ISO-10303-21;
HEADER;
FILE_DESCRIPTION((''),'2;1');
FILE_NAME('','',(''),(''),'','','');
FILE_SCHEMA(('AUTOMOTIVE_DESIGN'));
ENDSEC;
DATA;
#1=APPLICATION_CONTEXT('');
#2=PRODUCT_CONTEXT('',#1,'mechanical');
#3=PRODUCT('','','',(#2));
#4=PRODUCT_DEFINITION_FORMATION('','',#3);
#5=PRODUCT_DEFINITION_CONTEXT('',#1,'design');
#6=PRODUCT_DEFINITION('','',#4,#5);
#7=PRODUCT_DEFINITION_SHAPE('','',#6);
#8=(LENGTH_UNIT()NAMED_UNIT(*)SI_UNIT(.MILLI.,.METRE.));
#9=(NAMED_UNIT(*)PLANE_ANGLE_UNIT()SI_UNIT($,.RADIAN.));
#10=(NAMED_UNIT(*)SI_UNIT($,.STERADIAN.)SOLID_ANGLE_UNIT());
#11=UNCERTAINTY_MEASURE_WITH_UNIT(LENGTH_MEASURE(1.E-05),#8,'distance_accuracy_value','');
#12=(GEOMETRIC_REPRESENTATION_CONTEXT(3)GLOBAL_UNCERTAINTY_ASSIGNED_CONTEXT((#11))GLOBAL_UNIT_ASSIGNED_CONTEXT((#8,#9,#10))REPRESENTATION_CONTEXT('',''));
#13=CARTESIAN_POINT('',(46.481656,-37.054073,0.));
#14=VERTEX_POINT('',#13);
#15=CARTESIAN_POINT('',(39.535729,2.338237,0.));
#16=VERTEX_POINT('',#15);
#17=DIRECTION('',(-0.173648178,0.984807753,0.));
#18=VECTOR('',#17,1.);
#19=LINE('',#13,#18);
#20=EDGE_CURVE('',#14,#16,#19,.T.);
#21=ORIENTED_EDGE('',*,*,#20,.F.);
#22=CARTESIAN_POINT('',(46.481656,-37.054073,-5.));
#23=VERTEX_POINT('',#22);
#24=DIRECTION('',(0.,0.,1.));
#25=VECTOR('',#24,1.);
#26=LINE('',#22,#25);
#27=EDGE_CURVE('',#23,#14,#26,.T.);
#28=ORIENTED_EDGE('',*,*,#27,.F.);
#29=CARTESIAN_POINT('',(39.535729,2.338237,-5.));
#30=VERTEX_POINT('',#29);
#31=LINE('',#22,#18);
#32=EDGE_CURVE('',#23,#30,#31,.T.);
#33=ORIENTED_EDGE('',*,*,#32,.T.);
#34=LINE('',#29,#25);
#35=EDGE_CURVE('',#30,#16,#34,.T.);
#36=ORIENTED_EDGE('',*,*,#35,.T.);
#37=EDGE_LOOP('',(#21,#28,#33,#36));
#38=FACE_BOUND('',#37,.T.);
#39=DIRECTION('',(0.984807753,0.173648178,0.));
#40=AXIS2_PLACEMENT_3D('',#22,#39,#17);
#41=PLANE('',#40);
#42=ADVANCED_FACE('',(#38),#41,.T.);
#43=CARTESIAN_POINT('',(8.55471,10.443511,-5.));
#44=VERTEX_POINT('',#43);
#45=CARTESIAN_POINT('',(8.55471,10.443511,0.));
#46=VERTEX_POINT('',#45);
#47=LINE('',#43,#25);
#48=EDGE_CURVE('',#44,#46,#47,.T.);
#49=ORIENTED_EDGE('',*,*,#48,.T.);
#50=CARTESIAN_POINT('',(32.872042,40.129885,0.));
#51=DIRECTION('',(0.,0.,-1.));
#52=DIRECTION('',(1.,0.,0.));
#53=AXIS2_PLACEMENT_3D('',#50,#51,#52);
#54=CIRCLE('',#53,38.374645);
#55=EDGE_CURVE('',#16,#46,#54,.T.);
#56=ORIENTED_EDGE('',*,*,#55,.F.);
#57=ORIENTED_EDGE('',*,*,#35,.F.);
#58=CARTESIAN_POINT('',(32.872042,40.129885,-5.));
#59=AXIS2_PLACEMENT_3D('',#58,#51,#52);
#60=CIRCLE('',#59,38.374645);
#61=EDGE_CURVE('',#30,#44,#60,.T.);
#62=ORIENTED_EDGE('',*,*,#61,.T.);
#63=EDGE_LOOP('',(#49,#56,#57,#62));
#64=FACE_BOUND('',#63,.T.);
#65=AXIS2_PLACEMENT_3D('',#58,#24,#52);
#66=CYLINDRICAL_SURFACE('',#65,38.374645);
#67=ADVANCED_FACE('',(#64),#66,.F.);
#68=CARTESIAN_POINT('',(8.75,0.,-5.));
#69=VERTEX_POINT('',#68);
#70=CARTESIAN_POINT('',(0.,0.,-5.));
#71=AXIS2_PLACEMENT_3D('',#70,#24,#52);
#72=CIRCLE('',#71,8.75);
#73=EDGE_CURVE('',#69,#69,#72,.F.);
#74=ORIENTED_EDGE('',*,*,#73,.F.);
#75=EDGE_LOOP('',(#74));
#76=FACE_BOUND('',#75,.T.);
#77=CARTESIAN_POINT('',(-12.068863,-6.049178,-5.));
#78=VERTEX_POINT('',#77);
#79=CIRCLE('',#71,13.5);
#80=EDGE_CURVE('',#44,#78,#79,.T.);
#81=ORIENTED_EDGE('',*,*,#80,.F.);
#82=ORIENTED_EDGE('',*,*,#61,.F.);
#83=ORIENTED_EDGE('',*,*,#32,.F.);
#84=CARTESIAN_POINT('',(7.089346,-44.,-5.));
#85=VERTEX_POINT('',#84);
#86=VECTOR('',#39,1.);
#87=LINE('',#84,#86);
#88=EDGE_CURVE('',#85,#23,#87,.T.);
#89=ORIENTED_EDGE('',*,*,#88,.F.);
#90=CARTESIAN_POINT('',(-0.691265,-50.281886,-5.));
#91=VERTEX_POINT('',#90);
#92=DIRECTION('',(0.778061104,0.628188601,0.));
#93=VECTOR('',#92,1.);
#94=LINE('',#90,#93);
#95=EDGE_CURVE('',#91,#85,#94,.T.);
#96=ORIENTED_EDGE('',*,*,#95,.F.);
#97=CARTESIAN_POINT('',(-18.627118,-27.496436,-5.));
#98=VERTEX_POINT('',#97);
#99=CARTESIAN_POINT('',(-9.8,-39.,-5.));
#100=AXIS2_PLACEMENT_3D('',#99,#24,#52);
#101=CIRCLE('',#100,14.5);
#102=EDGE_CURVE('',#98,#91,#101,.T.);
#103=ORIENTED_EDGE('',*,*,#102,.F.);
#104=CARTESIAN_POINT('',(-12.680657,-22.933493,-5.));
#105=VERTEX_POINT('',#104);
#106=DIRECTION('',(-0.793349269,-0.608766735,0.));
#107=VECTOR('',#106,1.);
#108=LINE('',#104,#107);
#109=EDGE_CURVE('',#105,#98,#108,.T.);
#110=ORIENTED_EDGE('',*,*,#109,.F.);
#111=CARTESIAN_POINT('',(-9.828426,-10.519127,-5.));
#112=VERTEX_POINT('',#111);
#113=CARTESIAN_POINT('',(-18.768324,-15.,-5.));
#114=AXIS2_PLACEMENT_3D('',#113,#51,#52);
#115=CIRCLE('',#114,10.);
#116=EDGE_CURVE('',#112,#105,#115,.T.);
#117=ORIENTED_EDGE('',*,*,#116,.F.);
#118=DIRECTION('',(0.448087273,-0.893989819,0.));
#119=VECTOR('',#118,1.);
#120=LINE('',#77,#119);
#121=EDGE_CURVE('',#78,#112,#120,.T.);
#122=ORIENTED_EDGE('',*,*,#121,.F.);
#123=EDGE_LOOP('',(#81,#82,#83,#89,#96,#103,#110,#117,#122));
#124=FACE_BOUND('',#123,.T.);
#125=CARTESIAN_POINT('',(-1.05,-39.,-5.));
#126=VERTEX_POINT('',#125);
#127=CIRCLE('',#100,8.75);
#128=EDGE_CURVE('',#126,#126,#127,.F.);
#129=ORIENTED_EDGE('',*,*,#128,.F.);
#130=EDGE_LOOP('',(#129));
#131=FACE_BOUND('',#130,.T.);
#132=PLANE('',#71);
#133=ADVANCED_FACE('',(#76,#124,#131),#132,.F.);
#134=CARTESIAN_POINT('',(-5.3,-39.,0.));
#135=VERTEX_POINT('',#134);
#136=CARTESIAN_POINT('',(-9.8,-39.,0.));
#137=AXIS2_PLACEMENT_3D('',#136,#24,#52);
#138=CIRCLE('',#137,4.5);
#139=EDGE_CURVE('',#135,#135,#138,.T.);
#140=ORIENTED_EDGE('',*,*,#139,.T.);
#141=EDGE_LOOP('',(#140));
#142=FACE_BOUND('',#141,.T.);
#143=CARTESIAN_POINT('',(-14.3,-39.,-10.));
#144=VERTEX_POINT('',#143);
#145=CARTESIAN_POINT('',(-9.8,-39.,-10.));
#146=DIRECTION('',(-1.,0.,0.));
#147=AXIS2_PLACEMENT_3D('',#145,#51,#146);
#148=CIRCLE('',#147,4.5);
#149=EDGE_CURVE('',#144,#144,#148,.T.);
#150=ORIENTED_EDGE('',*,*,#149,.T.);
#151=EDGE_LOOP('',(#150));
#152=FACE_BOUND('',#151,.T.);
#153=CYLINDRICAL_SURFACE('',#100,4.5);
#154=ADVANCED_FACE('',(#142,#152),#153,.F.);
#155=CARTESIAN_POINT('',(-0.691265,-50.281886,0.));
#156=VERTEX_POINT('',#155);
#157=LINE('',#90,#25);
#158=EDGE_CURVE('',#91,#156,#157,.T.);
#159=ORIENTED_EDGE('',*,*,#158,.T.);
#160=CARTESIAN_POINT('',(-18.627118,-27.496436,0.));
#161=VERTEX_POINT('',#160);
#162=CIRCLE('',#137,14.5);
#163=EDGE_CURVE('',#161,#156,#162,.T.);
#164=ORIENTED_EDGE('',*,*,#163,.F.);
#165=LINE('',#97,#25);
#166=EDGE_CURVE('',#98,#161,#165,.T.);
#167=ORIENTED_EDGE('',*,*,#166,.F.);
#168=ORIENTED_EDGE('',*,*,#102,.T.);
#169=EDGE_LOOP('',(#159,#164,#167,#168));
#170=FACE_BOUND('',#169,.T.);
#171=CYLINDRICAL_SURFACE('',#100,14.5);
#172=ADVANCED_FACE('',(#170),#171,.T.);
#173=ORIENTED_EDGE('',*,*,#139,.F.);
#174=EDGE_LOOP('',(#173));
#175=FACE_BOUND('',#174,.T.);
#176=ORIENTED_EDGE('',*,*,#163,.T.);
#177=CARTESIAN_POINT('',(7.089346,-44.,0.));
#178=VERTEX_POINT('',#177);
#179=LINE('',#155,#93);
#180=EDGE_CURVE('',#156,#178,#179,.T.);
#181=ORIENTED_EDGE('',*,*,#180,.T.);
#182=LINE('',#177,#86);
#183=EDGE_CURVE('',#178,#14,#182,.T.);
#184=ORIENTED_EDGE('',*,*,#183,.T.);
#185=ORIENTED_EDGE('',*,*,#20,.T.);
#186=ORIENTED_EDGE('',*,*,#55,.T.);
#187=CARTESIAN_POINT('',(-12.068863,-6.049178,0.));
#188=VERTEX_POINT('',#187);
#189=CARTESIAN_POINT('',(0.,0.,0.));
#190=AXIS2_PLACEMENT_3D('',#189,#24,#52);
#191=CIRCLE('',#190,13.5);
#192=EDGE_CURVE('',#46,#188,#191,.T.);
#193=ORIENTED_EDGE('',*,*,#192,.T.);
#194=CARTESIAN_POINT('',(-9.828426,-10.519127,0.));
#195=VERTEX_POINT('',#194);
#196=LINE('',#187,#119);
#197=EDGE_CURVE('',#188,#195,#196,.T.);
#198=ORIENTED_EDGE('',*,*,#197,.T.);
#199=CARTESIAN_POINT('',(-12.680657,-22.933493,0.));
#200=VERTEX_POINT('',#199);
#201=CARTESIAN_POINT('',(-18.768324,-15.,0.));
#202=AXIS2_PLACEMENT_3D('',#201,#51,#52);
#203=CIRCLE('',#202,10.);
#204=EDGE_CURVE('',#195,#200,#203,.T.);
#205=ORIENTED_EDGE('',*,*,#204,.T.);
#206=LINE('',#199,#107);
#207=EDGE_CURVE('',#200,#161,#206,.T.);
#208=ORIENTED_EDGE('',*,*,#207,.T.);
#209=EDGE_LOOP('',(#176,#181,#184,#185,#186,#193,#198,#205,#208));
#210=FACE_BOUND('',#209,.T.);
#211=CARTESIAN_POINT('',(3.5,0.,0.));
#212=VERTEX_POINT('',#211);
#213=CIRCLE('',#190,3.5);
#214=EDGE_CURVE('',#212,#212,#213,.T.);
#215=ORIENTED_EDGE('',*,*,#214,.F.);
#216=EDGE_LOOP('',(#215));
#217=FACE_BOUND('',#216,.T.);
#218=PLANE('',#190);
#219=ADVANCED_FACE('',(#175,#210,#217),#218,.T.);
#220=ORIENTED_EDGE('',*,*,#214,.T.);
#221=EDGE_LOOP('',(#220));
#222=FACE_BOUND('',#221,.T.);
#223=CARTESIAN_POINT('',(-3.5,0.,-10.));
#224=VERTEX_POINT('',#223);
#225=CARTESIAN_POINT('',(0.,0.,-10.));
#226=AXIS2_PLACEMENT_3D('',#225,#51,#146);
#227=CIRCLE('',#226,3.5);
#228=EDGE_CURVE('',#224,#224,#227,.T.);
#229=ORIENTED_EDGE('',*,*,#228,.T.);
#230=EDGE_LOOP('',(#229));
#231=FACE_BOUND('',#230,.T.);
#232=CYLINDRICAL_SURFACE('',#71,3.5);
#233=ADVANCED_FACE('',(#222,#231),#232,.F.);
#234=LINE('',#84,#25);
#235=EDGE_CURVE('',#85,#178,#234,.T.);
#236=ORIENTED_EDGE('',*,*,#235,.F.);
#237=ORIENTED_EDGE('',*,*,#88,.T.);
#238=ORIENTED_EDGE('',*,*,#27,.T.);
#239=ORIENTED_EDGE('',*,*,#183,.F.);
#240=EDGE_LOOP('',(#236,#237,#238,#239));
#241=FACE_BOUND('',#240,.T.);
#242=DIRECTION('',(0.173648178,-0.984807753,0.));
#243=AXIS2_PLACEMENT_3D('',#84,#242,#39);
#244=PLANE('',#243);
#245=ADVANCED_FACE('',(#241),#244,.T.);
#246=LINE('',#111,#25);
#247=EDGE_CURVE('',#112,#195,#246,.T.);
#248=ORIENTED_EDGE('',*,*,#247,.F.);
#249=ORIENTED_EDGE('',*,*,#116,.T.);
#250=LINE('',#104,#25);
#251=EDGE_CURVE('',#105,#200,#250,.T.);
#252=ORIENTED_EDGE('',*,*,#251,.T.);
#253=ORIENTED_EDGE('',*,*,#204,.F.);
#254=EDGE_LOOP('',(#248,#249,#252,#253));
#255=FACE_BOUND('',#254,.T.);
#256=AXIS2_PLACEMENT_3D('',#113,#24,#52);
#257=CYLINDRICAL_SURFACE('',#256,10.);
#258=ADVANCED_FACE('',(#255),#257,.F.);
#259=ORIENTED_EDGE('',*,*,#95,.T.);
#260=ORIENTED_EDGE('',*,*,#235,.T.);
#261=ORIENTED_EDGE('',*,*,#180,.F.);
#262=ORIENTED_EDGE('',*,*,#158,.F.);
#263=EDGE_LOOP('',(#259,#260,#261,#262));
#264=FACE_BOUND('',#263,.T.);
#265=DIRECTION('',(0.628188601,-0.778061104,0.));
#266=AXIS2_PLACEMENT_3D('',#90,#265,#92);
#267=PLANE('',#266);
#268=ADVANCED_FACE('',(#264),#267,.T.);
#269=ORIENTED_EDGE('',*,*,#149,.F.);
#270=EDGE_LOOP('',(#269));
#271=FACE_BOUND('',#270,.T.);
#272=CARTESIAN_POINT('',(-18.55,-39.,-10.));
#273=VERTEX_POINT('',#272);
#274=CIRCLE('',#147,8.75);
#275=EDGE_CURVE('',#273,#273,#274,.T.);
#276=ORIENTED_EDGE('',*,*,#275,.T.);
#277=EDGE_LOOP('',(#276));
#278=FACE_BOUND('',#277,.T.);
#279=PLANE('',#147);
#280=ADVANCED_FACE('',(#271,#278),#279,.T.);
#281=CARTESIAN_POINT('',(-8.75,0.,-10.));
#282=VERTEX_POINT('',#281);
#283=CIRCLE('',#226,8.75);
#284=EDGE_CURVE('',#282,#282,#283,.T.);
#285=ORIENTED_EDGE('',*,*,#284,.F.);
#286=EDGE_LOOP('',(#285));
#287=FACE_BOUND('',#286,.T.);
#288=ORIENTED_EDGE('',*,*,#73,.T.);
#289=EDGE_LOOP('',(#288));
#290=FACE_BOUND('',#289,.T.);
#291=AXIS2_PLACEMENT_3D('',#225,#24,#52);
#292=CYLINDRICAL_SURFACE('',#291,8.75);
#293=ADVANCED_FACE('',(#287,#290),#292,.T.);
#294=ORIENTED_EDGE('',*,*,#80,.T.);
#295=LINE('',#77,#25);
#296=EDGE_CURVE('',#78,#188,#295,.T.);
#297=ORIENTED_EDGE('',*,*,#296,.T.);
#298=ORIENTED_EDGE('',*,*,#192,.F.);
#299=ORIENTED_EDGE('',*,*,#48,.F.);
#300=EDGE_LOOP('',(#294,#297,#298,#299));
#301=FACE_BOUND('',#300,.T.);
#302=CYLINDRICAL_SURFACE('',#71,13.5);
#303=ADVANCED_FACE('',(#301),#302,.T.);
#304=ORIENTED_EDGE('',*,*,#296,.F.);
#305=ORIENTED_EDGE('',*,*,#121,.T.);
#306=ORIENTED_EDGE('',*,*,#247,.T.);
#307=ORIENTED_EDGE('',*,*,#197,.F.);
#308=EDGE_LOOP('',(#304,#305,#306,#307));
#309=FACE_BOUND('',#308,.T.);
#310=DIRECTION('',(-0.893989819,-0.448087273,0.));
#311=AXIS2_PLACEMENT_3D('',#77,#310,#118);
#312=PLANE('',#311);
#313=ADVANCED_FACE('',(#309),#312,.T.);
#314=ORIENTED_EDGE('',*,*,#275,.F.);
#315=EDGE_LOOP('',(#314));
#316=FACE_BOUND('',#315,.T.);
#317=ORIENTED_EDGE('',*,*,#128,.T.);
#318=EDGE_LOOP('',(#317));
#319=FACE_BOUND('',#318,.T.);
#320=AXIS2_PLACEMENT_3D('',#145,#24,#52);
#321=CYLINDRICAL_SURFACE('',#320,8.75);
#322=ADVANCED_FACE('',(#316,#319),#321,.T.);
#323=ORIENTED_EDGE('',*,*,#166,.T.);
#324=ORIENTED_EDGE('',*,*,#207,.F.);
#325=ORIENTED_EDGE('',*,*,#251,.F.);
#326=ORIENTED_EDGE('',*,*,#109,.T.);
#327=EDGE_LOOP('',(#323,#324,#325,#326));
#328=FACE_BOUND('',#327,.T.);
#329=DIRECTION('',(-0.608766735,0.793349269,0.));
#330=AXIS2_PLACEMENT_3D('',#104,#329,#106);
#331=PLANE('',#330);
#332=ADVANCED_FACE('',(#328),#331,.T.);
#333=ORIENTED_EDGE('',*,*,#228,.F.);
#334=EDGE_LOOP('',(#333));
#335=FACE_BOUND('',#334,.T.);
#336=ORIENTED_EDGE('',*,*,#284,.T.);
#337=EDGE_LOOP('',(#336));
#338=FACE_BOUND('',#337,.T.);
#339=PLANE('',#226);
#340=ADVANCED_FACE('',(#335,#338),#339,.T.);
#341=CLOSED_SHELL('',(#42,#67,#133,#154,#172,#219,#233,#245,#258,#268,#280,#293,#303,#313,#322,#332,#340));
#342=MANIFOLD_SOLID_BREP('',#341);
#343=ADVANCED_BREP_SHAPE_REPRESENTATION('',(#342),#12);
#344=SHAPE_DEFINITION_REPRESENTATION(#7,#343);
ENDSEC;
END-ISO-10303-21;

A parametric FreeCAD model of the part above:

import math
import FreeCAD as App
import Part
import Sketcher

V = App.Vector
Q = App.Units.Quantity

doc = App.newDocument("Part")
body = doc.addObject("PartDesign::Body", "Body")

# Sketch on XY plane
sketch1 = body.newObject("Sketcher::SketchObject", "Sketch")
sketch1.AttachmentSupport = (doc.getObject("XY_Plane"), [""])
sketch1.MapMode = "FlatFace"
sketch1.addGeometry(Part.LineSegment(V(-12.1, -6, 0), V(-9.8, -10.5, 0)), False)
sketch1.addGeometry(Part.ArcOfCircle(Part.Circle(V(-18.8, -15, 0), V(0, 0, 1), 10), math.radians(-52), math.radians(27)), False)
sketch1.addGeometry(Part.LineSegment(V(-12.7, -22.9, 0), V(-18.6, -27.5, 0)), False)
sketch1.addGeometry(Part.ArcOfCircle(Part.Circle(V(-9.8, -39, 0), V(0, 0, 1), 14.5), math.radians(128), math.radians(309)), False)
sketch1.addGeometry(Part.LineSegment(V(-0.7, -50.3, 0), V(7.1, -44, 0)), False)
sketch1.addGeometry(Part.LineSegment(V(7.1, -44, 0), V(46.5, -37.1, 0)), False)
sketch1.addGeometry(Part.LineSegment(V(46.5, -37.1, 0), V(39.5, 2.3, 0)), False)
sketch1.addGeometry(Part.ArcOfCircle(Part.Circle(V(32.9, 40.1, 0), V(0, 0, 1), 38.4), math.radians(-129), math.radians(-80)), False)
sketch1.addGeometry(Part.ArcOfCircle(Part.Circle(V(0, 0, 0), V(0, 0, 1), 13.5), math.radians(51), math.radians(207)), False)
sketch1.addGeometry(Part.Circle(V(-9.8, -39, 0), V(0, 0, 1), 4.5), False)
sketch1.addGeometry(Part.Circle(V(0, 0, 0), V(0, 0, 1), 3.5), False)
sketch1.addConstraint(Sketcher.Constraint("Tangent", 0, 2, 1, 2))
sketch1.addConstraint(Sketcher.Constraint("Tangent", 1, 1, 2, 1))
sketch1.addConstraint(Sketcher.Constraint("Tangent", 2, 2, 3, 1))
sketch1.addConstraint(Sketcher.Constraint("Tangent", 3, 2, 4, 1))
sketch1.addConstraint(Sketcher.Constraint("Coincident", 4, 2, 5, 1))
sketch1.addConstraint(Sketcher.Constraint("Coincident", 5, 2, 6, 1))
sketch1.addConstraint(Sketcher.Constraint("Coincident", 6, 2, 7, 2))
sketch1.addConstraint(Sketcher.Constraint("Tangent", 7, 1, 8, 1))
sketch1.addConstraint(Sketcher.Constraint("Tangent", 8, 2, 0, 1))
sketch1.addConstraint(Sketcher.Constraint("Coincident", 8, 3, -1, 1))
sketch1.addConstraint(Sketcher.Constraint("Coincident", 10, 3, -1, 1))
sketch1.addConstraint(Sketcher.Constraint("Coincident", 9, 3, 3, 3))
sketch1.addConstraint(Sketcher.Constraint("Perpendicular", 5, 6))
sketch1.addConstraint(Sketcher.Constraint("Equal", 5, 6))
sketch1.addConstraint(Sketcher.Constraint("Diameter", 9, Q("9 mm")))
sketch1.addConstraint(Sketcher.Constraint("Diameter", 10, Q("7 mm")))
sketch1.addConstraint(Sketcher.Constraint("Radius", 1, Q("10 mm")))
sketch1.addConstraint(Sketcher.Constraint("Radius", 3, Q("14.5 mm")))
sketch1.addConstraint(Sketcher.Constraint("Radius", 8, Q("13.5 mm")))
sketch1.addConstraint(Sketcher.Constraint("Angle", 5, Q("10 deg")))
sketch1.addConstraint(Sketcher.Constraint("Distance", 0, Q("5 mm")))
sketch1.addConstraint(Sketcher.Constraint("Distance", 4, Q("10 mm")))
sketch1.addConstraint(Sketcher.Constraint("Distance", 5, Q("40 mm")))
sketch1.addConstraint(Sketcher.Constraint("DistanceY", 1, 3, -1, 1, Q("15 mm")))
sketch1.addConstraint(Sketcher.Constraint("DistanceY", 3, 3, -1, 1, Q("39 mm")))
sketch1.addConstraint(Sketcher.Constraint("DistanceY", 4, 2, -1, 1, Q("44 mm")))
sketch1.addConstraint(Sketcher.Constraint("DistanceX", 3, 3, -1, 1, Q("9.8 mm")))
sketch1.addConstraint(Sketcher.Constraint("Radius", 7, Q("38.374645 mm")))
pad1 = body.newObject("PartDesign::Pad", "Pad")
pad1.Profile = sketch1
pad1.Length = 5
pad1.Reversed = True

# Sketch on XY plane
sketch2 = body.newObject("Sketcher::SketchObject", "Sketch001")
sketch2.AttachmentSupport = (doc.getObject("XY_Plane"), [""])
sketch2.MapMode = "FlatFace"
sketch2.AttachmentOffset = App.Placement(V(0, 0, -5), App.Rotation())
sketch2.addGeometry(Part.Circle(V(0, 0, 0), V(0, 0, 1), 8.8), False)
sketch2.addGeometry(Part.Circle(V(0, 0, 0), V(0, 0, 1), 3.5), False)
sketch2.addGeometry(Part.Circle(V(-9.8, -39, 0), V(0, 0, 1), 8.8), False)
sketch2.addGeometry(Part.Circle(V(-9.8, -39, 0), V(0, 0, 1), 4.5), False)
sketch2.addConstraint(Sketcher.Constraint("Coincident", 0, 3, -1, 1))
sketch2.addConstraint(Sketcher.Constraint("Coincident", 1, 3, -1, 1))
sketch2.addConstraint(Sketcher.Constraint("Coincident", 3, 3, 2, 3))
sketch2.addConstraint(Sketcher.Constraint("Equal", 0, 2))
sketch2.addConstraint(Sketcher.Constraint("Diameter", 1, Q("7 mm")))
sketch2.addConstraint(Sketcher.Constraint("Diameter", 3, Q("9 mm")))
sketch2.addConstraint(Sketcher.Constraint("Diameter", 0, Q("17.5 mm")))
sketch2.addConstraint(Sketcher.Constraint("DistanceY", 2, 3, -1, 1, Q("39 mm")))
sketch2.addConstraint(Sketcher.Constraint("DistanceX", 2, 3, -1, 1, Q("9.8 mm")))
pad2 = body.newObject("PartDesign::Pad", "Pad001")
pad2.Profile = sketch2
pad2.Length = 5
pad2.Reversed = True

doc.recompute()
